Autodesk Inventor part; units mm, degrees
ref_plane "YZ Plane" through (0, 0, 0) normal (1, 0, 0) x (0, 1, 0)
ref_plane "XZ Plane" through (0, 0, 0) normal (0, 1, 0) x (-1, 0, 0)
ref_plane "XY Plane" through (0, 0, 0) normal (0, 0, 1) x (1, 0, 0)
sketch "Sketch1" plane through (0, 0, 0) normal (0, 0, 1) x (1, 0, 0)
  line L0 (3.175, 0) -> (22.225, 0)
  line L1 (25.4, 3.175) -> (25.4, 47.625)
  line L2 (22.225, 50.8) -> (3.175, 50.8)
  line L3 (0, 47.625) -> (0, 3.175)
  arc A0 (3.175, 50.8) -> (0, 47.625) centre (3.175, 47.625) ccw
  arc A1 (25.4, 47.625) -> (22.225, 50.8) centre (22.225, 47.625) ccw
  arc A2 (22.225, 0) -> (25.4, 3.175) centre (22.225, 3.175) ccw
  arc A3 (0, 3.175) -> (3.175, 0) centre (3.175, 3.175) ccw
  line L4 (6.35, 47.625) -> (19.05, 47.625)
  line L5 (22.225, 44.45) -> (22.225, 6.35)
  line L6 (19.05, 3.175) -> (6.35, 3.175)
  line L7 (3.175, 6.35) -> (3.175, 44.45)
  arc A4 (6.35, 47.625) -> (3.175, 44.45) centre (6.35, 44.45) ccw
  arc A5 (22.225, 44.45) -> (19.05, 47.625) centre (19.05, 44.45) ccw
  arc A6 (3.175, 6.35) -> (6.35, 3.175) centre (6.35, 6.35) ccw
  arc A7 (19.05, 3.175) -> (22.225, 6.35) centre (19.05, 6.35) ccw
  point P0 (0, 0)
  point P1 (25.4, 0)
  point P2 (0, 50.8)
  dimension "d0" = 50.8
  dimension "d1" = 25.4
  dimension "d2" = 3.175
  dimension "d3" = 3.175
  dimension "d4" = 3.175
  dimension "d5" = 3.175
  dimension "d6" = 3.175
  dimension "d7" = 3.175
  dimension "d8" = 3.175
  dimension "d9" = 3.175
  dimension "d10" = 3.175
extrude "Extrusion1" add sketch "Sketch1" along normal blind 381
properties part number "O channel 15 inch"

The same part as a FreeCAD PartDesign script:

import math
import FreeCAD as App
import Part
import Sketcher
Q = App.Units.Quantity

doc = App.newDocument("Part")
body = doc.addObject("PartDesign::Body", "Body")

# Sketch on XY plane
sketch1 = body.newObject("Sketcher::SketchObject", "Sketch")
sketch1.AttachmentSupport = (doc.getObject("XY_Plane"), [""])
sketch1.MapMode = "FlatFace"
sketch1.addGeometry([
    Part.ArcOfCircle(Part.Circle(App.Vector(3.2, 3.2, 0), App.Vector(0, 0, 1), 3.2), math.radians(180), math.radians(270)),  # 0
    Part.LineSegment(App.Vector(3.2, 0, 0), App.Vector(22.2, 0, 0)),  # 1
    Part.ArcOfCircle(Part.Circle(App.Vector(22.2, 3.2, 0), App.Vector(0, 0, 1), 3.2), math.radians(-90), math.radians(0)),  # 2
    Part.LineSegment(App.Vector(25.4, 3.2, 0), App.Vector(25.4, 47.6, 0)),  # 3
    Part.ArcOfCircle(Part.Circle(App.Vector(22.2, 47.6, 0), App.Vector(0, 0, 1), 3.2), math.radians(0), math.radians(90)),  # 4
    Part.LineSegment(App.Vector(22.2, 50.8, 0), App.Vector(3.2, 50.8, 0)),  # 5
    Part.ArcOfCircle(Part.Circle(App.Vector(3.2, 47.6, 0), App.Vector(0, 0, 1), 3.2), math.radians(90), math.radians(180)),  # 6
    Part.LineSegment(App.Vector(0, 47.6, 0), App.Vector(0, 3.2, 0)),  # 7
    Part.ArcOfCircle(Part.Circle(App.Vector(6.3, 44.5, 0), App.Vector(0, 0, 1), 3.2), math.radians(90), math.radians(180)),  # 8
    Part.LineSegment(App.Vector(6.3, 47.6, 0), App.Vector(19.1, 47.6, 0)),  # 9
    Part.ArcOfCircle(Part.Circle(App.Vector(19.1, 44.5, 0), App.Vector(0, 0, 1), 3.2), math.radians(0), math.radians(90)),  # 10
    Part.LineSegment(App.Vector(22.2, 44.5, 0), App.Vector(22.2, 6.3, 0)),  # 11
    Part.ArcOfCircle(Part.Circle(App.Vector(19.1, 6.3, 0), App.Vector(0, 0, 1), 3.2), math.radians(-90), math.radians(0)),  # 12
    Part.LineSegment(App.Vector(19.1, 3.2, 0), App.Vector(6.3, 3.2, 0)),  # 13
    Part.ArcOfCircle(Part.Circle(App.Vector(6.3, 6.3, 0), App.Vector(0, 0, 1), 3.2), math.radians(180), math.radians(270)),  # 14
    Part.LineSegment(App.Vector(3.2, 6.3, 0), App.Vector(3.2, 44.5, 0)),  # 15
], False)
sketch1.addConstraint([
    Sketcher.Constraint("Tangent", 0, 2, 1, 1),
    Sketcher.Constraint("Tangent", 1, 2, 2, 1),
    Sketcher.Constraint("Tangent", 2, 2, 3, 1),
    Sketcher.Constraint("Tangent", 3, 2, 4, 1),
    Sketcher.Constraint("Tangent", 4, 2, 5, 1),
    Sketcher.Constraint("Tangent", 5, 2, 6, 1),
    Sketcher.Constraint("Tangent", 6, 2, 7, 1),
    Sketcher.Constraint("Tangent", 7, 2, 0, 1),
    Sketcher.Constraint("Tangent", 8, 1, 9, 1),
    Sketcher.Constraint("Tangent", 9, 2, 10, 2),
    Sketcher.Constraint("Tangent", 10, 1, 11, 1),
    Sketcher.Constraint("Tangent", 11, 2, 12, 2),
    Sketcher.Constraint("Tangent", 12, 1, 13, 1),
    Sketcher.Constraint("Tangent", 13, 2, 14, 2),
    Sketcher.Constraint("Tangent", 14, 1, 15, 1),
    Sketcher.Constraint("Tangent", 15, 2, 8, 2),
    Sketcher.Constraint("Horizontal", 1),
    Sketcher.Constraint("Vertical", 3),
    Sketcher.Constraint("Horizontal", 5),
    Sketcher.Constraint("Vertical", 7),
    Sketcher.Constraint("Horizontal", 9),
    Sketcher.Constraint("Vertical", 11),
    Sketcher.Constraint("Horizontal", 13),
    Sketcher.Constraint("Vertical", 15),
    Sketcher.Constraint("Equal", 0, 2),
    Sketcher.Constraint("Equal", 2, 4),
    Sketcher.Constraint("Equal", 4, 6),
    Sketcher.Constraint("Equal", 6, 8),
    Sketcher.Constraint("Equal", 8, 10),
    Sketcher.Constraint("Equal", 10, 12),
    Sketcher.Constraint("Equal", 12, 14),
    Sketcher.Constraint("PointOnObject", 0, 2, -1),
    Sketcher.Constraint("PointOnObject", 6, 2, -2),
    Sketcher.Constraint("Horizontal", 6, 2, 8, 1),
    Sketcher.Constraint("Horizontal", 7, 2, 12, 1),
    Sketcher.Constraint("Vertical", 4, 2, 10, 1),
    Sketcher.Constraint("Vertical", 5, 2, 14, 1),
    Sketcher.Constraint("DistanceX", -1, 1, 2, 2, Q("1 in")),
    Sketcher.Constraint("DistanceY", -1, 1, 4, 2, Q("2 in")),
    Sketcher.Constraint("Radius", 0, Q("0.125 in")),
])
pad1 = body.newObject("PartDesign::Pad", "Pad")
pad1.Profile = sketch1
pad1.Length = Q("15 in")

doc.recompute()
